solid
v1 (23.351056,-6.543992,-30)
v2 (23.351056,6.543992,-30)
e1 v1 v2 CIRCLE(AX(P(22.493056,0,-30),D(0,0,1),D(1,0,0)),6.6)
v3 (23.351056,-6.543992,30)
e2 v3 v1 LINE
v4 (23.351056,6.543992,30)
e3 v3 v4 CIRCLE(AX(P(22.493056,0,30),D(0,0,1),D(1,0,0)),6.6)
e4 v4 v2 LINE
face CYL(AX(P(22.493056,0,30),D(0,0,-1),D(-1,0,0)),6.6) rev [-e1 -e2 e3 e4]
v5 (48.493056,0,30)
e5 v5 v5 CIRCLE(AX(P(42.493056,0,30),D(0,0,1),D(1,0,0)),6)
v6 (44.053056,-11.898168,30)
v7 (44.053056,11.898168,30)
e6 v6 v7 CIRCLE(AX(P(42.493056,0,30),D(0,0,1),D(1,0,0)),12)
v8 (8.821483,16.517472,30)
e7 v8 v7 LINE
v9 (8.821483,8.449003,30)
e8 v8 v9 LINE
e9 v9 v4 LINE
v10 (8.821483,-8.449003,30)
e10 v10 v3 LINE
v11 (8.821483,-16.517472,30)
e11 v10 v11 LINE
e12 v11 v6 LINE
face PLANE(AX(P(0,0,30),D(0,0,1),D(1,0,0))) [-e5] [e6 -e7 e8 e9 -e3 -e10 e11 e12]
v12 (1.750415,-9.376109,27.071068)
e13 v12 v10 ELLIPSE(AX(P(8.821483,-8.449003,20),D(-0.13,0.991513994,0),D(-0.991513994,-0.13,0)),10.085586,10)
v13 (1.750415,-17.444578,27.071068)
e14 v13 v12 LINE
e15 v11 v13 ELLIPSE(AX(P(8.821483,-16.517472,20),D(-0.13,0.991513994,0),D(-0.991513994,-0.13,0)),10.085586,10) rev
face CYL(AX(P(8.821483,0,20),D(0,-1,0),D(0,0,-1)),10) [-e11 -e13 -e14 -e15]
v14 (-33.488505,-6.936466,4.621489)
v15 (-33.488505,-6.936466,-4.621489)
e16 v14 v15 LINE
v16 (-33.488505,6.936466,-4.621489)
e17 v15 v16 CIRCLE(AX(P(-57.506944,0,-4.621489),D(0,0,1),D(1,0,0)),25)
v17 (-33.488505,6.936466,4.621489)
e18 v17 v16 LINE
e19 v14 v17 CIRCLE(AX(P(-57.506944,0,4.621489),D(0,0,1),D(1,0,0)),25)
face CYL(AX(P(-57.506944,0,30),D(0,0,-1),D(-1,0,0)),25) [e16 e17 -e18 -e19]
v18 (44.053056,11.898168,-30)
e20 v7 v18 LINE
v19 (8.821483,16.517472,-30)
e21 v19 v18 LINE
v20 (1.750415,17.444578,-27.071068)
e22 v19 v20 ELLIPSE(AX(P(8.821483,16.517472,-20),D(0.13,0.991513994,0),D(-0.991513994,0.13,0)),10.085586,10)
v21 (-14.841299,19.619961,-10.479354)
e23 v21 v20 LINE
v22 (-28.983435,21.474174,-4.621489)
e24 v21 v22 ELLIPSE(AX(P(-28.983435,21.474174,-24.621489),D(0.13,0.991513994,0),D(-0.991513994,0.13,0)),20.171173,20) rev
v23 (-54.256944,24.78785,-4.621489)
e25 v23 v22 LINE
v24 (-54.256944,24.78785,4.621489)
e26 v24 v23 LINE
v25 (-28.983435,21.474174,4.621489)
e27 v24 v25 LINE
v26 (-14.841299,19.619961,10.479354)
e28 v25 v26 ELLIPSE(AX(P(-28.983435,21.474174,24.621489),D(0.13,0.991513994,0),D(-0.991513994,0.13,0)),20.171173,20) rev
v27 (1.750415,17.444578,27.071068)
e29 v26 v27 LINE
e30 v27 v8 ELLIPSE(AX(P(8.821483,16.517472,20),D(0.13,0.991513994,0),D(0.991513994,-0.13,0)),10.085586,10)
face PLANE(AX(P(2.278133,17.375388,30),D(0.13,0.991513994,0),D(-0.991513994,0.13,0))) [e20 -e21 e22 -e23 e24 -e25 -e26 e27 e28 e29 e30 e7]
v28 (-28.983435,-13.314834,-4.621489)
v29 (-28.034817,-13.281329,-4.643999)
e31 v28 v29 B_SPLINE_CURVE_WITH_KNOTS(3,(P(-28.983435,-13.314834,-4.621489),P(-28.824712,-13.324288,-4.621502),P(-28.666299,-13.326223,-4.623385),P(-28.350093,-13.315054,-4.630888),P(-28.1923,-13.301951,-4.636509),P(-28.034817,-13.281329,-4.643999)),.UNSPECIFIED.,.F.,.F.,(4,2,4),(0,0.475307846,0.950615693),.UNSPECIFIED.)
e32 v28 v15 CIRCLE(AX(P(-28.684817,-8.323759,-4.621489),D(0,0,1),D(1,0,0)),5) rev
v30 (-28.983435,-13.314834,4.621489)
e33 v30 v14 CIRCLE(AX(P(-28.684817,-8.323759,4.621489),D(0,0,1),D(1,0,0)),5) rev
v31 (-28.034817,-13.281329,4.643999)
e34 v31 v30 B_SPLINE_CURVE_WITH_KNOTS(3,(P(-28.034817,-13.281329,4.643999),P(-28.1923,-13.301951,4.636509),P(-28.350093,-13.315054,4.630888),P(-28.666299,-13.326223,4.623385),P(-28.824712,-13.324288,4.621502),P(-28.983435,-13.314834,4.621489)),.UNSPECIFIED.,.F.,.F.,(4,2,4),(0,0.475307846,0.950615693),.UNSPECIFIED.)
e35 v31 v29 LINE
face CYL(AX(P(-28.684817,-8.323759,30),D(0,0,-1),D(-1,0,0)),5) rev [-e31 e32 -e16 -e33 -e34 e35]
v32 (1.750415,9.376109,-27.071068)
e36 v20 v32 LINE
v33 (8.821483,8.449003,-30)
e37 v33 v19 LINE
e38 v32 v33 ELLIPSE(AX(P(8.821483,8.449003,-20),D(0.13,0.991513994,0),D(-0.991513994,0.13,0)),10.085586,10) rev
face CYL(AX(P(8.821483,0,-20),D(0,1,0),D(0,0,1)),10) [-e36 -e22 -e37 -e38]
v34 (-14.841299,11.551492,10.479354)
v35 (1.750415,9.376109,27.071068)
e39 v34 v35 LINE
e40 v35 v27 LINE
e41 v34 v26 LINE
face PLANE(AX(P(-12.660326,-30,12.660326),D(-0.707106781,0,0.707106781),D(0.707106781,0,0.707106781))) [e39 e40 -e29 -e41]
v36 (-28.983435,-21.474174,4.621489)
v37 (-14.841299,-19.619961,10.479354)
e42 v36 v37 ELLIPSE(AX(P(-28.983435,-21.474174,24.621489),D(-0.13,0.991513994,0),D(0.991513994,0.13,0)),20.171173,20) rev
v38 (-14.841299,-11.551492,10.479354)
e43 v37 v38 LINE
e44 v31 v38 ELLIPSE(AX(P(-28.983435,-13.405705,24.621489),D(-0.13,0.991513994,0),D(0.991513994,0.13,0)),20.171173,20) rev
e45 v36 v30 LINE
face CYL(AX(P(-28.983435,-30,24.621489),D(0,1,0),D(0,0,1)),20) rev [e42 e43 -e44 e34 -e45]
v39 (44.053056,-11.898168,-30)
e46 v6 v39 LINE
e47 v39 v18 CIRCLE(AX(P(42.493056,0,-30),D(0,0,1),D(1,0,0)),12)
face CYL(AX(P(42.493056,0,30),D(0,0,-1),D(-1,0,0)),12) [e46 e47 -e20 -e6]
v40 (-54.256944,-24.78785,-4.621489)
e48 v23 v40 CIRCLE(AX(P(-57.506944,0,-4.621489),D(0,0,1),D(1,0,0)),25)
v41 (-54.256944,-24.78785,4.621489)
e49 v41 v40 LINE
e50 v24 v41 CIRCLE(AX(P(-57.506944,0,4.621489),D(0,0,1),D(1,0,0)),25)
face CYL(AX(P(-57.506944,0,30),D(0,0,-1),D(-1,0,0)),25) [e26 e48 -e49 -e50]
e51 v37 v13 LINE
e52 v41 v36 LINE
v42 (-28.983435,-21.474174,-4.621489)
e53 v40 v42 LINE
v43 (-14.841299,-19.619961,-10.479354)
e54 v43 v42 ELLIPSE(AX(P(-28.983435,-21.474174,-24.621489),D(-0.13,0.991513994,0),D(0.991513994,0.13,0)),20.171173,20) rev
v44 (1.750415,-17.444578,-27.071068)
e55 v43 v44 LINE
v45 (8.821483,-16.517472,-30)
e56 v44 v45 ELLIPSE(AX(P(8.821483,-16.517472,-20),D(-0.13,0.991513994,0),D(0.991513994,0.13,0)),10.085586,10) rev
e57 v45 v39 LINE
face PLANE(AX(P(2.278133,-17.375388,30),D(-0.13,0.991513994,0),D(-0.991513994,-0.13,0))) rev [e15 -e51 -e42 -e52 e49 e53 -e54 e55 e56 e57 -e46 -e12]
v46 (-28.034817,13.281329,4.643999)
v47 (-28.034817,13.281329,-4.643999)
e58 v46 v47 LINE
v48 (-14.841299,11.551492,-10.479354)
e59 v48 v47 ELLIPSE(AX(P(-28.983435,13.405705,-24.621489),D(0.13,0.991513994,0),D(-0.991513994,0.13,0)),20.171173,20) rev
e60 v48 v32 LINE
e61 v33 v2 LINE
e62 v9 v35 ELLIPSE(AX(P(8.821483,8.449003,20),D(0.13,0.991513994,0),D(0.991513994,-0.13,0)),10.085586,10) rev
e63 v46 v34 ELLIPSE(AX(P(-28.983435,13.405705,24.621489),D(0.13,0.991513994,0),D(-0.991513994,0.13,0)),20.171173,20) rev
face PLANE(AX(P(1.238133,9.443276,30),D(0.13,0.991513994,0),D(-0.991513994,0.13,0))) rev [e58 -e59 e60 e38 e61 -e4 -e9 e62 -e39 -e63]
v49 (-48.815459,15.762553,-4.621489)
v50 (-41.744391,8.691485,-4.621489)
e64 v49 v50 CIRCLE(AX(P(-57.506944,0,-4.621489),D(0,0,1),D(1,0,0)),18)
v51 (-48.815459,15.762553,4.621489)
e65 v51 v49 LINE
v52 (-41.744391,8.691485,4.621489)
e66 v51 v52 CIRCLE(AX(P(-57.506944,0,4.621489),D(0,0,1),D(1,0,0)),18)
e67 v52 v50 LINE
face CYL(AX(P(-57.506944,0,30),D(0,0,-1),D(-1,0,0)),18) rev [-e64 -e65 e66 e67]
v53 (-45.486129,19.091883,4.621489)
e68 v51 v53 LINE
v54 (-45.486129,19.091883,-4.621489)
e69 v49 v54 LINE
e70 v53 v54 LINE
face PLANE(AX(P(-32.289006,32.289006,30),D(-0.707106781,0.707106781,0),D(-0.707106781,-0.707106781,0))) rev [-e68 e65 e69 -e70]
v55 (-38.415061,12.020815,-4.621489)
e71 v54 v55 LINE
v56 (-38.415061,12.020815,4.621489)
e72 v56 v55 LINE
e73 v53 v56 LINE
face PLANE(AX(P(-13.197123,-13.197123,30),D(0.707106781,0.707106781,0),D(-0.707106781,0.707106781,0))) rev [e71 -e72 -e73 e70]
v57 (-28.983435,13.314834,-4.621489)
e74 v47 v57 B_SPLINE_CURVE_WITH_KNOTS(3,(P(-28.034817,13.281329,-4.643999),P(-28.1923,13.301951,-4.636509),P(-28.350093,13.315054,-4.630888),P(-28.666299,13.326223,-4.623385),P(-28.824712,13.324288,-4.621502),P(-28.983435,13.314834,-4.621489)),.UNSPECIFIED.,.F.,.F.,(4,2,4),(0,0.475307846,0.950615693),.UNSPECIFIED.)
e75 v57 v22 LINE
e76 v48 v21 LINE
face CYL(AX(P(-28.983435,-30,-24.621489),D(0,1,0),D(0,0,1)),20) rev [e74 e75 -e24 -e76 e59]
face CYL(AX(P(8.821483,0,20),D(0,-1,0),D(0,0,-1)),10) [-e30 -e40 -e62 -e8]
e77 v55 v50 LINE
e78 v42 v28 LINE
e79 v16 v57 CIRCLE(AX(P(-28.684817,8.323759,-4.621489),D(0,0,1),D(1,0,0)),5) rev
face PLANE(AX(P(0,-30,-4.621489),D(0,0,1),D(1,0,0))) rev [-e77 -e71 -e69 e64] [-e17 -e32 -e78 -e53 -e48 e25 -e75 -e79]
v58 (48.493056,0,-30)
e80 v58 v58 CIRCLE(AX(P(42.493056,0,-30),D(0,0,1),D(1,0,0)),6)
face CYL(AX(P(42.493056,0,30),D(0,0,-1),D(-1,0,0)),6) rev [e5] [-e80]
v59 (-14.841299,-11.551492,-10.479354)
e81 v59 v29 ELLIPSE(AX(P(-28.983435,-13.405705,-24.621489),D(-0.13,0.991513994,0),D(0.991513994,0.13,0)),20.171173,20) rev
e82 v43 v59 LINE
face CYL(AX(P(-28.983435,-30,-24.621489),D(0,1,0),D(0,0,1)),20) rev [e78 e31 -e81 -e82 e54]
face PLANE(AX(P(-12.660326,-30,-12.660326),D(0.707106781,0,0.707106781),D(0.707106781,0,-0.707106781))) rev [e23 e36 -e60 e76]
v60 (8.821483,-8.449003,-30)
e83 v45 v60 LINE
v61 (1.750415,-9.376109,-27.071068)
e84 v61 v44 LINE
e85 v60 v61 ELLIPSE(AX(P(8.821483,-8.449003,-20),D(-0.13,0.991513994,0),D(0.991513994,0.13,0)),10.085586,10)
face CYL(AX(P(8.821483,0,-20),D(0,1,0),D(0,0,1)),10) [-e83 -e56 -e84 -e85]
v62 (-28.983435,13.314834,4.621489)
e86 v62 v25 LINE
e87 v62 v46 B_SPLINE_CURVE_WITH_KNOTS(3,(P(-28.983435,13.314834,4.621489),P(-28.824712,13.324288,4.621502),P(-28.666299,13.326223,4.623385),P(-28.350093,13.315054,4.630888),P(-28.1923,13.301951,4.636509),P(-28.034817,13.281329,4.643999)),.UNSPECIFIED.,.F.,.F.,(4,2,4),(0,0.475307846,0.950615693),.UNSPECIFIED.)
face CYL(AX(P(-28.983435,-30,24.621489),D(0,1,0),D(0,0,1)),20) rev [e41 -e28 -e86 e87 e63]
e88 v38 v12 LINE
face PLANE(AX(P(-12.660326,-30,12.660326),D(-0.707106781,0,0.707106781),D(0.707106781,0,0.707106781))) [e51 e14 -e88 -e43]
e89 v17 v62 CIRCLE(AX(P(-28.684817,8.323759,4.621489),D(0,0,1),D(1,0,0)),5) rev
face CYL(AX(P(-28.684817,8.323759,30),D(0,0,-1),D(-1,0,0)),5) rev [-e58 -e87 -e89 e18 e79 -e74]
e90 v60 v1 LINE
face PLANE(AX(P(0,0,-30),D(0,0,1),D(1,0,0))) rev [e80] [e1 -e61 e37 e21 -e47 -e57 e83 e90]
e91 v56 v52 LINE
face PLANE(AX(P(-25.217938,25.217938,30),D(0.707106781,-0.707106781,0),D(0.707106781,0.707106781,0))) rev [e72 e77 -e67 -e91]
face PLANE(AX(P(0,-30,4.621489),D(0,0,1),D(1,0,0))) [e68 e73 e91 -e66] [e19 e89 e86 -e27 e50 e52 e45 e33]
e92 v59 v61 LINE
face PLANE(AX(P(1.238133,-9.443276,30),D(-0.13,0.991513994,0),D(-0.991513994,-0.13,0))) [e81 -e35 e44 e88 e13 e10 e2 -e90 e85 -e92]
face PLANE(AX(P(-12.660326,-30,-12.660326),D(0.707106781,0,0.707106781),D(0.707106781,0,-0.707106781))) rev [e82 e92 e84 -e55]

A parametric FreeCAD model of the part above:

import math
import FreeCAD as App
import Part
import Sketcher

V = App.Vector
Q = App.Units.Quantity


def edges_at(feature, points):
    """Names of the edges that pass closest to the given points."""
    edges = feature.Shape.Edges
    near = lambda p: min(range(len(edges)), key=lambda i: edges[i].distToShape(Part.Vertex(*p))[0])
    return sorted({f"Edge{near(p) + 1}" for p in points})

doc = App.newDocument("Part")
params = doc.addObject("Spreadsheet::Sheet", "Params")
for row, (alias, value) in enumerate([
    ("sketch1_diameter", "12 mm"),
    ("sketch1_radius", "25 mm"),
    ("sketch1_radius2", "12 mm"),
    ("sketch1_radius3", "5 mm"),
    ("sketch1_radius4", "18 mm"),
    ("pad1_length", "60 mm"),
    ("sketch2_radius", "20 mm"),
    ("pocket1_length", "60 mm"),
    ("fillet_radius", "10 mm"),
], start=1):
    params.set(f"A{row}", alias)
    params.set(f"B{row}", "=" + value)
    params.setAlias(f"B{row}", alias)

body = doc.addObject("PartDesign::Body", "Body")

# Sketch on XY plane
sketch1 = body.newObject("Sketcher::SketchObject", "Sketch")
sketch1.AttachmentSupport = (doc.getObject("XY_Plane"), [""])
sketch1.MapMode = "FlatFace"
sketch1.addGeometry([
    Part.LineSegment(V(44.1, 11.9, 0), V(-54.3, 24.8, 0)),  # 0
    Part.ArcOfCircle(Part.Circle(V(-57.5, 0, 0), V(0, 0, 1), 25), math.radians(83), math.radians(277)),  # 1
    Part.LineSegment(V(-54.3, -24.8, 0), V(44.1, -11.9, 0)),  # 2
    Part.ArcOfCircle(Part.Circle(V(42.5, 0, 0), V(0, 0, 1), 12), math.radians(-83), math.radians(83)),  # 3
    Part.ArcOfCircle(Part.Circle(V(-57.5, 0, 0), V(0, 0, 1), 25), math.radians(-16), math.radians(16)),  # 4
    Part.ArcOfCircle(Part.Circle(V(-28.7, 8.3, 0), V(0, 0, 1), 5), math.radians(83), math.radians(196)),  # 5
    Part.LineSegment(V(-28, 13.3, 0), V(23.4, 6.5, 0)),  # 6
    Part.ArcOfCircle(Part.Circle(V(22.5, 0, 0), V(0, 0, 1), 6.6), math.radians(-83), math.radians(83)),  # 7
    Part.LineSegment(V(23.4, -6.5, 0), V(-28, -13.3, 0)),  # 8
    Part.ArcOfCircle(Part.Circle(V(-28.7, -8.3, 0), V(0, 0, 1), 5), math.radians(164), math.radians(277)),  # 9
    Part.LineSegment(V(-38.4, 12, 0), V(-41.7, 8.7, 0)),  # 10
    Part.ArcOfCircle(Part.Circle(V(-57.5, 0, 0), V(0, 0, 1), 18), math.radians(61), math.radians(389)),  # 11
    Part.LineSegment(V(-48.8, 15.8, 0), V(-45.5, 19.1, 0)),  # 12
    Part.LineSegment(V(-45.5, 19.1, 0), V(-38.4, 12, 0)),  # 13
    Part.Circle(V(42.5, 0, 0), V(0, 0, 1), 6),  # 14
], False)
sketch1.addConstraint([
    Sketcher.Constraint("Tangent", 0, 2, 1, 1),
    Sketcher.Constraint("Tangent", 1, 2, 2, 1),
    Sketcher.Constraint("Tangent", 2, 2, 3, 1),
    Sketcher.Constraint("Tangent", 3, 2, 0, 1),
    Sketcher.Constraint("Tangent", 4, 2, 5, 2),
    Sketcher.Constraint("Tangent", 5, 1, 6, 1),
    Sketcher.Constraint("Tangent", 6, 2, 7, 2),
    Sketcher.Constraint("Tangent", 7, 1, 8, 1),
    Sketcher.Constraint("Tangent", 8, 2, 9, 2),
    Sketcher.Constraint("Tangent", 9, 1, 4, 1),
    Sketcher.Constraint("Coincident", 10, 2, 11, 2),
    Sketcher.Constraint("Coincident", 11, 1, 12, 1),
    Sketcher.Constraint("Coincident", 12, 2, 13, 1),
    Sketcher.Constraint("Coincident", 13, 2, 10, 1),
    Sketcher.Constraint("Coincident", 4, 3, 1, 3),
    Sketcher.Constraint("Coincident", 11, 3, 1, 3),
    Sketcher.Constraint("Coincident", 14, 3, 3, 3),
    Sketcher.Constraint("Equal", 1, 4),
    Sketcher.Constraint("Equal", 5, 9),
    Sketcher.Constraint("Symmetric", 5, 3, 9, 3, -1),
    Sketcher.Constraint("PointOnObject", 3, 3, -1),
    Sketcher.Constraint("PointOnObject", 7, 3, -1),
    Sketcher.Constraint("Parallel", 0, 6),
    Sketcher.Constraint("Parallel", 10, 12),
    Sketcher.Constraint("Perpendicular", 12, 13),
    Sketcher.Constraint("Equal", 10, 12),
    Sketcher.Constraint("Diameter", 14, Q("12 mm")),
    Sketcher.Constraint("Radius", 1, Q("25 mm")),
    Sketcher.Constraint("Radius", 3, Q("12 mm")),
    Sketcher.Constraint("Radius", 5, Q("5 mm")),
    Sketcher.Constraint("Radius", 11, Q("18 mm")),
    Sketcher.Constraint("Radius", 7, Q("6.6 mm")),
    Sketcher.Constraint("Angle", 10, Q("-135 deg")),
    Sketcher.Constraint("Distance", 13, Q("10 mm")),
    Sketcher.Constraint("DistanceX", 1, 3, 3, 3, Q("100 mm")),
    Sketcher.Constraint("DistanceX", 7, 3, 3, 3, Q("20 mm")),
    Sketcher.Constraint("DistanceX", 10, 2, -1, 1, Q("41.744391 mm")),
    Sketcher.Constraint("DistanceX", 12, 2, -1, 1, Q("45.486129 mm")),
])
sketch1.setExpression("Constraints[26]", "Params.sketch1_diameter")
sketch1.setExpression("Constraints[27]", "Params.sketch1_radius")
sketch1.setExpression("Constraints[28]", "Params.sketch1_radius2")
sketch1.setExpression("Constraints[29]", "Params.sketch1_radius3")
sketch1.setExpression("Constraints[30]", "Params.sketch1_radius4")
pad1 = body.newObject("PartDesign::Pad", "Pad")
pad1.Profile = sketch1
pad1.setExpression("Length", "Params.pad1_length")
pad1.Midplane = True

# Sketch on XZ plane
sketch2 = body.newObject("Sketcher::SketchObject", "Sketch001")
sketch2.AttachmentSupport = (doc.getObject("XZ_Plane"), [""])
sketch2.MapMode = "FlatFace"
sketch2.addGeometry([
    Part.ArcOfCircle(Part.Circle(V(-29, -25, 0), V(0, 0, 1), 20), math.radians(45), math.radians(90)),  # 0
    Part.LineSegment(V(-15, -10, 0), V(5, -30, 0)),  # 1
    Part.LineSegment(V(5, -30, 0), V(-83, -30, 0)),  # 2
    Part.LineSegment(V(-83, -30, 0), V(-83, -5, 0)),  # 3
    Part.LineSegment(V(-83, -5, 0), V(-29, -5, 0)),  # 4
    Part.ArcOfCircle(Part.Circle(V(-29, 25, 0), V(0, 0, 1), 20), math.radians(-90), math.radians(-45)),  # 5
    Part.LineSegment(V(-29, 5, 0), V(-83, 5, 0)),  # 6
    Part.LineSegment(V(-83, 5, 0), V(-83, 30, 0)),  # 7
    Part.LineSegment(V(-83, 30, 0), V(5, 30, 0)),  # 8
    Part.LineSegment(V(5, 30, 0), V(-15, 10, 0)),  # 9
], False)
sketch2.addConstraint([
    Sketcher.Constraint("Tangent", 0, 1, 1, 1),
    Sketcher.Constraint("Coincident", 1, 2, 2, 1),
    Sketcher.Constraint("Coincident", 2, 2, 3, 1),
    Sketcher.Constraint("Coincident", 3, 2, 4, 1),
    Sketcher.Constraint("Tangent", 4, 2, 0, 2),
    Sketcher.Constraint("Tangent", 5, 1, 6, 1),
    Sketcher.Constraint("Coincident", 6, 2, 7, 1),
    Sketcher.Constraint("Coincident", 7, 2, 8, 1),
    Sketcher.Constraint("Coincident", 8, 2, 9, 1),
    Sketcher.Constraint("Tangent", 9, 2, 5, 2),
    Sketcher.Constraint("Horizontal", 2),
    Sketcher.Constraint("Vertical", 3),
    Sketcher.Constraint("Horizontal", 4),
    Sketcher.Constraint("Horizontal", 6),
    Sketcher.Constraint("Vertical", 7),
    Sketcher.Constraint("Horizontal", 8),
    Sketcher.Constraint("Equal", 0, 5),
    Sketcher.Constraint("Symmetric", 0, 3, 5, 3, -1),
    Sketcher.Constraint("Symmetric", 2, 2, 7, 2, -1),
    Sketcher.Constraint("Perpendicular", 1, 9),
    Sketcher.Constraint("Vertical", 1, 2, 8, 2),
    Sketcher.Constraint("Radius", 0, Q("20 mm")),
    Sketcher.Constraint("DistanceY", 1, 2, -1, 1, Q("30 mm")),
    Sketcher.Constraint("DistanceX", 2, 2, 2, 1, Q("87.186292 mm")),
    Sketcher.Constraint("DistanceX", 4, 1, 4, 2, Q("53.523509 mm")),
    Sketcher.Constraint("DistanceX", 0, 1, -1, 1, Q("14.841299 mm")),
])
sketch2.setExpression("Constraints[21]", "Params.sketch2_radius")
pocket1 = body.newObject("PartDesign::Pocket", "Pocket")
pocket1.Profile = sketch2
pocket1.setExpression("Length", "Params.pocket1_length")
pocket1.Midplane = True
doc.recompute()

fillet = body.newObject("PartDesign::Fillet", "Fillet")
fillet.Base = (pocket1, edges_at(pocket1, [
    (4.679, 13.026, -30),
    (4.679, -13.026, -30),
    (4.679, -13.026, 30),
    (4.679, 13.026, 30),
]))
fillet.setExpression("Radius", "Params.fillet_radius")

doc.recompute()
